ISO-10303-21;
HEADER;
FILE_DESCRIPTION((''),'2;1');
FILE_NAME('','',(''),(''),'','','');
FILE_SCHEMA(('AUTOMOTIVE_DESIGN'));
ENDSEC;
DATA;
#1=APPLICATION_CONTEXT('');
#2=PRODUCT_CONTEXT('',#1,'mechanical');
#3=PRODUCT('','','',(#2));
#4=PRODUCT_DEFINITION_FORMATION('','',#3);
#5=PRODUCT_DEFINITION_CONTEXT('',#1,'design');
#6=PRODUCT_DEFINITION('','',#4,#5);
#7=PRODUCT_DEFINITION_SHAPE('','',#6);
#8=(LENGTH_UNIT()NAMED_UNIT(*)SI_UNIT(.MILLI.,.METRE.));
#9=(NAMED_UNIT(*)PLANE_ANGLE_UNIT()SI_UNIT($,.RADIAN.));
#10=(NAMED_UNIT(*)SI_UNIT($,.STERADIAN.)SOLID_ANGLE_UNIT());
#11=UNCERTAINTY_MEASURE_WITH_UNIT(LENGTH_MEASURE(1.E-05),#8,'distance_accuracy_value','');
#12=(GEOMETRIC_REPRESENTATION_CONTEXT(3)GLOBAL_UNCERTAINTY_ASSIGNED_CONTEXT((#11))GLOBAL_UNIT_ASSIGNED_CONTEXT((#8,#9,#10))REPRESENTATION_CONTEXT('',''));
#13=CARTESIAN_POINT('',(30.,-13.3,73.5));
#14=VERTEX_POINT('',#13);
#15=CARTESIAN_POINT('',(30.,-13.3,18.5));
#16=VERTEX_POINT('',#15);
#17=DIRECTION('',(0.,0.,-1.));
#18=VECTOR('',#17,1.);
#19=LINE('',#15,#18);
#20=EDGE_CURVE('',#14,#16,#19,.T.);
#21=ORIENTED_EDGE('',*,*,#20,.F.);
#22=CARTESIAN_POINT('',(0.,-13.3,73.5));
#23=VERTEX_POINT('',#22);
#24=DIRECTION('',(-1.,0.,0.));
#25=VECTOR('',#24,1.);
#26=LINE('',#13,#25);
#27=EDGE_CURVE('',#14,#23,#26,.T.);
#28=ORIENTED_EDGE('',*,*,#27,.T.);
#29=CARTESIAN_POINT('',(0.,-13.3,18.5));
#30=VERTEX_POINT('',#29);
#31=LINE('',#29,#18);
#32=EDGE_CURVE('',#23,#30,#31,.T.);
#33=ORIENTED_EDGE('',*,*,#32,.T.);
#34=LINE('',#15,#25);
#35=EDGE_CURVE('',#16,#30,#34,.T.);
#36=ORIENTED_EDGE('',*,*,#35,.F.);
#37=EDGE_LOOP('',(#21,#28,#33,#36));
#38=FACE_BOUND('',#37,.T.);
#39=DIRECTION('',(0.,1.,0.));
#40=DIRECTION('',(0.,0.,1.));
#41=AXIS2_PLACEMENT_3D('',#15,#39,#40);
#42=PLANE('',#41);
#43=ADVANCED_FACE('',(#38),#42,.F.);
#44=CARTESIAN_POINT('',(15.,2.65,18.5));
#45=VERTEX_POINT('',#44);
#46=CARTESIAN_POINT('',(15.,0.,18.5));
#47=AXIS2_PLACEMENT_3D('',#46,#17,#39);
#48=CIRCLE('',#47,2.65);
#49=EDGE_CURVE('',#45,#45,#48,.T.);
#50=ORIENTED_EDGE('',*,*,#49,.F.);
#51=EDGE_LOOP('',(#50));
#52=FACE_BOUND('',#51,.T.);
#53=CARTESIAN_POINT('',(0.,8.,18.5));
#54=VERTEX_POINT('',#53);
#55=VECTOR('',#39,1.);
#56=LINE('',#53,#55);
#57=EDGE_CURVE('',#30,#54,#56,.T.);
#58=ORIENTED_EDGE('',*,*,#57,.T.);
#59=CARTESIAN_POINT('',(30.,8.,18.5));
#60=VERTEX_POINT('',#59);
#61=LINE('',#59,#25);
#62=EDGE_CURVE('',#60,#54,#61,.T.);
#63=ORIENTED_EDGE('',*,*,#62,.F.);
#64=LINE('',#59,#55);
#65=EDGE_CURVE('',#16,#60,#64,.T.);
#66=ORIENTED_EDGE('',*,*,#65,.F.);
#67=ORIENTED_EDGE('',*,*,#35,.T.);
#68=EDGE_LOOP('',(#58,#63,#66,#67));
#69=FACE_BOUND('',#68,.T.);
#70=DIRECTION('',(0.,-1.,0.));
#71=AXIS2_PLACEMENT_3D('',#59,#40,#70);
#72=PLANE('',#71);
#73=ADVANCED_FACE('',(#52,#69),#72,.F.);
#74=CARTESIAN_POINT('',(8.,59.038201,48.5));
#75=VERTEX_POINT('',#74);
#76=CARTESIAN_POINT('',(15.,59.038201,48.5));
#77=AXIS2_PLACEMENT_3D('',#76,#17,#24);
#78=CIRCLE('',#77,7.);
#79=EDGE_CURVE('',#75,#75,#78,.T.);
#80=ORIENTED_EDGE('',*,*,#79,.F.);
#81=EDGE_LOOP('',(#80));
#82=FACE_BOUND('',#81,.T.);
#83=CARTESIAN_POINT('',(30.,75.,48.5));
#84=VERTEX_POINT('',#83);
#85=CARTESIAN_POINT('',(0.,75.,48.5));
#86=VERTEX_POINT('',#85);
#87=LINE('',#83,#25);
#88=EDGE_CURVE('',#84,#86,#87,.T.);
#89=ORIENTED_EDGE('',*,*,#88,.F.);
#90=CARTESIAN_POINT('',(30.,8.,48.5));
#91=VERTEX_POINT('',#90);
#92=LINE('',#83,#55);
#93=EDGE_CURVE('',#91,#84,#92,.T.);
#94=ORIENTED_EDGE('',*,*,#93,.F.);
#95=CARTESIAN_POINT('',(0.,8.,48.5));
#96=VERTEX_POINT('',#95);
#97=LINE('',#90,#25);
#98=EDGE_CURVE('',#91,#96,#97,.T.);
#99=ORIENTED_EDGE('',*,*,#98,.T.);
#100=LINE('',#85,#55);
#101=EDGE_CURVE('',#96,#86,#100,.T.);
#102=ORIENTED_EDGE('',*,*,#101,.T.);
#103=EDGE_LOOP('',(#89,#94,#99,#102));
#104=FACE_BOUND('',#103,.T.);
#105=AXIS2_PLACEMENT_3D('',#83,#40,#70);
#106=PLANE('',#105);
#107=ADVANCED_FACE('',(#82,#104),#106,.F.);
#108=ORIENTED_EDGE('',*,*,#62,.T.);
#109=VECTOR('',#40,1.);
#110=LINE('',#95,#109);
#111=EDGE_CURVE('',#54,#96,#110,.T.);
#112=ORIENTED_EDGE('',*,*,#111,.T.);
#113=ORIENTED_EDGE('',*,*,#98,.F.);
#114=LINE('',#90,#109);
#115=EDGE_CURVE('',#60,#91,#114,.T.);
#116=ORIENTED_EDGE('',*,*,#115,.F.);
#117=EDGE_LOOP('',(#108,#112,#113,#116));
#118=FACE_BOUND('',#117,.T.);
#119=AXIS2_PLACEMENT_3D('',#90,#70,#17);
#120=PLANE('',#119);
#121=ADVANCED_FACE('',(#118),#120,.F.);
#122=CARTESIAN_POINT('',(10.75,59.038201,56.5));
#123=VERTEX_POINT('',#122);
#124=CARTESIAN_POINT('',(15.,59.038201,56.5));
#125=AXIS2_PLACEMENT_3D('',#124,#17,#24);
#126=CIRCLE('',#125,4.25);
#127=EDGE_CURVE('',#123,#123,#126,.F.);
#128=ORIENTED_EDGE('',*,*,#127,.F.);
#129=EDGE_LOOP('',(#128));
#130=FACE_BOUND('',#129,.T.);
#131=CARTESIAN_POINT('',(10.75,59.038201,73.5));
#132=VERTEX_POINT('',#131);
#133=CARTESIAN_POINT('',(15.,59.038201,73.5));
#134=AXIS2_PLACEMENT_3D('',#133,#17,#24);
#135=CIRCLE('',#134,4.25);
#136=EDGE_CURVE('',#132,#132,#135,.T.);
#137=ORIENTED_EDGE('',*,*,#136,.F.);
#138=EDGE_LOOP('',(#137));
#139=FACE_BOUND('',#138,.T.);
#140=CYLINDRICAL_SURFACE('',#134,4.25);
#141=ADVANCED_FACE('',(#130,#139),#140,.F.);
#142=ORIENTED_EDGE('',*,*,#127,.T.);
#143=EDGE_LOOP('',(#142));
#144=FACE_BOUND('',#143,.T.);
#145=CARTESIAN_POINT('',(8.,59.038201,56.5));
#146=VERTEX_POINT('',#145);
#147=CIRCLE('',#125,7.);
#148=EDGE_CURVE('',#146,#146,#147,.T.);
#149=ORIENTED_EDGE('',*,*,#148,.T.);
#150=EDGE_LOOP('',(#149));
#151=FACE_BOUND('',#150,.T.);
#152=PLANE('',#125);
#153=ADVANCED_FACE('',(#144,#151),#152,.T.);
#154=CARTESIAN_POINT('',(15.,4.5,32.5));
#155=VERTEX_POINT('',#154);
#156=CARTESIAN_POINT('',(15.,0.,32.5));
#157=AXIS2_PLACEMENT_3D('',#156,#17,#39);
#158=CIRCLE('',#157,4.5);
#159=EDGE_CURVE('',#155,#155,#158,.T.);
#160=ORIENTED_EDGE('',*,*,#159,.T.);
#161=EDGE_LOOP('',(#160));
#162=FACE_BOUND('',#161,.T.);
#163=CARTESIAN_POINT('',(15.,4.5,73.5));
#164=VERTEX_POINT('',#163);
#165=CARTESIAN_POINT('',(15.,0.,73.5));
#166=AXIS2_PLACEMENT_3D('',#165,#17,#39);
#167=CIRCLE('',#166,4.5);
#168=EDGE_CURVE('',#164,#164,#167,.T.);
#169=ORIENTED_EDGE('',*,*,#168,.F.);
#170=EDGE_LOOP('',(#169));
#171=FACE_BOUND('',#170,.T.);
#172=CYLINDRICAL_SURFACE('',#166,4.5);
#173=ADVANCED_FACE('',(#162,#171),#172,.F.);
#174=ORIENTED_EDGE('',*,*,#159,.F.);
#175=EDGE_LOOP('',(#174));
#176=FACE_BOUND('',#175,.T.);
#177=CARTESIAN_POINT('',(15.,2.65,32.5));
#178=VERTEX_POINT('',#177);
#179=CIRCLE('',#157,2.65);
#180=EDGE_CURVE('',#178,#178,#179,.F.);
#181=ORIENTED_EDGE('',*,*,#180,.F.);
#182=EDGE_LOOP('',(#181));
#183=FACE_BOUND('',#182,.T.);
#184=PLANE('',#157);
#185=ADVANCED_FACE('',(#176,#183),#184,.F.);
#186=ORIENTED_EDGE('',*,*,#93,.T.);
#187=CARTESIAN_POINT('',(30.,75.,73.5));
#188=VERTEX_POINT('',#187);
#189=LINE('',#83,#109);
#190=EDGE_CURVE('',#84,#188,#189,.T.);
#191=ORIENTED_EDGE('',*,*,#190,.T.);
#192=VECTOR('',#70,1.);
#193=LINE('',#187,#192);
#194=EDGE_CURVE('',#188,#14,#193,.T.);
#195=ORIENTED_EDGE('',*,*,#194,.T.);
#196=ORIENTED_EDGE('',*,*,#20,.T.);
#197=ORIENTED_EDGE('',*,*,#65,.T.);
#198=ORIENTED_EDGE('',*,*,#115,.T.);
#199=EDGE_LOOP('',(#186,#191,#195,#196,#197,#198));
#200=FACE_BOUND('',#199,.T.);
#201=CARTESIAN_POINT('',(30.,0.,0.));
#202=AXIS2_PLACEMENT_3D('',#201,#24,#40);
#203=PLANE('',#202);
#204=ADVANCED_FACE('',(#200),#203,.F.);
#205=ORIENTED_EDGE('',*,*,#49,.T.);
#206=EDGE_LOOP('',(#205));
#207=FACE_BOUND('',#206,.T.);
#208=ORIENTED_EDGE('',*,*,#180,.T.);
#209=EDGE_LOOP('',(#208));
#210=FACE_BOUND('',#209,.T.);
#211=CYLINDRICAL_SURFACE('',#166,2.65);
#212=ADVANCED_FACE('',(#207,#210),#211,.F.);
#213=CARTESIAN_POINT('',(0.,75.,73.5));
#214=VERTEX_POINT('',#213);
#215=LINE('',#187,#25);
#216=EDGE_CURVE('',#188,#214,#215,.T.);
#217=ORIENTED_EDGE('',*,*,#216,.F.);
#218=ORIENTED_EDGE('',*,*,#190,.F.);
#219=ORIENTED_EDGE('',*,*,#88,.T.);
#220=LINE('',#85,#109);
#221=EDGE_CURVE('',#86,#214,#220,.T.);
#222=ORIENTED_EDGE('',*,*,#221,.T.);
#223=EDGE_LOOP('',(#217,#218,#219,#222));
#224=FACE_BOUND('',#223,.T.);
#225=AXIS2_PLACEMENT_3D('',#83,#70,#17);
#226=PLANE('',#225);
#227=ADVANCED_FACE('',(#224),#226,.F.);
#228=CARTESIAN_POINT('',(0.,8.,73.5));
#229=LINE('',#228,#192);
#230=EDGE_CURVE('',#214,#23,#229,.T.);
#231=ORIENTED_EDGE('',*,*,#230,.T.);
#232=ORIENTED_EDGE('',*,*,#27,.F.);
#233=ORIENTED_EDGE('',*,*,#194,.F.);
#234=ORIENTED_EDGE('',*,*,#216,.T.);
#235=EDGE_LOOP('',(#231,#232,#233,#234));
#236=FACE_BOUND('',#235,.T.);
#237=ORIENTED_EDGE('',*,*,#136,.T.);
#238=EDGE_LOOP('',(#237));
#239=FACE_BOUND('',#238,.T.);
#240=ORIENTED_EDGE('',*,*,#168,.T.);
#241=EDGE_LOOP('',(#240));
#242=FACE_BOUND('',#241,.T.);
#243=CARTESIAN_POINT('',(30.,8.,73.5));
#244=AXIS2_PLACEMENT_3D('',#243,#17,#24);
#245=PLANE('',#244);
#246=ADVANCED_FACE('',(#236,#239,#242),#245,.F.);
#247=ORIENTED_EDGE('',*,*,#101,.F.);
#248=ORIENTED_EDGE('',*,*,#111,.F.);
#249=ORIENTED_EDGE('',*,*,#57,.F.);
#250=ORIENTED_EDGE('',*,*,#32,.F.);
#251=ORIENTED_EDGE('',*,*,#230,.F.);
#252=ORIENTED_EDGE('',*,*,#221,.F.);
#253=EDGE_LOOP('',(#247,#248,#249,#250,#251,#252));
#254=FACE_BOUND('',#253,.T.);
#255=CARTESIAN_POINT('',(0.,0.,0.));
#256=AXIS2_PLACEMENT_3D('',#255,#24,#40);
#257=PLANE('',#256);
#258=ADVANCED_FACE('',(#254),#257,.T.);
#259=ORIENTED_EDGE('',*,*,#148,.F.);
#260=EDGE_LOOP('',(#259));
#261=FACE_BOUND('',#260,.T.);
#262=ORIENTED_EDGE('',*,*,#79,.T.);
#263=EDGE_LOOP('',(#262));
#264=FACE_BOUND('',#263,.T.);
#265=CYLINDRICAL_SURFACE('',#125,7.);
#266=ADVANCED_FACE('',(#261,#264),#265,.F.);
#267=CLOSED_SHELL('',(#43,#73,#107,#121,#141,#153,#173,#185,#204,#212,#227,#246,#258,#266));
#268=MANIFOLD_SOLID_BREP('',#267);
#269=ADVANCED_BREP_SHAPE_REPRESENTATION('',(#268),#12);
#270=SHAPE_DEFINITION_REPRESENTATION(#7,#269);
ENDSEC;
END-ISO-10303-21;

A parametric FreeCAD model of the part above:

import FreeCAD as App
import Part
import Sketcher
from FreeCAD import Vector

doc = App.newDocument("Part")
body = doc.addObject("PartDesign::Body", "Body")

# Sketch on YZ plane
sketch1 = body.newObject("Sketcher::SketchObject", "Sketch")
sketch1.AttachmentSupport = (doc.getObject("YZ_Plane"), [""])
sketch1.MapMode = "FlatFace"
sketch1.addGeometry([
    Part.LineSegment(Vector(-13, 18, 0), Vector(8, 18, 0)),  # 0
    Part.LineSegment(Vector(8, 18, 0), Vector(8, 48, 0)),  # 1
    Part.LineSegment(Vector(8, 48, 0), Vector(75, 48, 0)),  # 2
    Part.LineSegment(Vector(75, 48, 0), Vector(75, 74, 0)),  # 3
    Part.LineSegment(Vector(75, 74, 0), Vector(-13, 74, 0)),  # 4
    Part.LineSegment(Vector(-13, 74, 0), Vector(-13, 18, 0)),  # 5
], False)
sketch1.addConstraint([
    Sketcher.Constraint("Coincident", 0, 2, 1, 1),
    Sketcher.Constraint("Coincident", 1, 2, 2, 1),
    Sketcher.Constraint("Coincident", 2, 2, 3, 1),
    Sketcher.Constraint("Coincident", 3, 2, 4, 1),
    Sketcher.Constraint("Coincident", 4, 2, 5, 1),
    Sketcher.Constraint("Coincident", 5, 2, 0, 1),
    Sketcher.Constraint("Horizontal", 0),
    Sketcher.Constraint("Vertical", 1),
    Sketcher.Constraint("Horizontal", 2),
    Sketcher.Constraint("Vertical", 3),
    Sketcher.Constraint("Horizontal", 4),
    Sketcher.Constraint("Vertical", 5),
    Sketcher.Constraint("DistanceX", 2, 1, 2, 2, 67.0),
    Sketcher.Constraint("DistanceY", 1, 1, 1, 2, 30.0),
    Sketcher.Constraint("DistanceY", 3, 1, 3, 2, 25.0),
    Sketcher.Constraint("DistanceX", 0, 1, 0, 2, 21.3),
    Sketcher.Constraint("DistanceX", -1, 1, 0, 2, 8.0),
    Sketcher.Constraint("DistanceY", -1, 1, 0, 2, 18.5),
])
pad1 = body.newObject("PartDesign::Pad", "Pad")
pad1.Profile = sketch1
pad1.Length = 30

# Sketch on XY plane
sketch2 = body.newObject("Sketcher::SketchObject", "Sketch001")
sketch2.AttachmentSupport = (doc.getObject("XY_Plane"), [""])
sketch2.MapMode = "FlatFace"
sketch2.AttachmentOffset = App.Placement(Vector(0, 0, 18.5), App.Rotation())
sketch2.addGeometry(Part.Circle(Vector(15, 0, 0), Vector(0, 0, 1), 2.6), False)
sketch2.addConstraint([
    Sketcher.Constraint("PointOnObject", 0, 3, -1),
    Sketcher.Constraint("Diameter", 0, 5.3),
    Sketcher.Constraint("DistanceX", -1, 1, 0, 3, 15.0),
])
pocket1 = body.newObject("PartDesign::Pocket", "Pocket")
pocket1.Profile = sketch2
pocket1.Type = "ThroughAll"
pocket1.Reversed = True

# Sketch on XY plane
sketch3 = body.newObject("Sketcher::SketchObject", "Sketch002")
sketch3.AttachmentSupport = (doc.getObject("XY_Plane"), [""])
sketch3.MapMode = "FlatFace"
sketch3.AttachmentOffset = App.Placement(Vector(0, 0, 32.5), App.Rotation())
sketch3.addGeometry(Part.Circle(Vector(15, 0, 0), Vector(0, 0, 1), 4.5), False)
sketch3.addConstraint([
    Sketcher.Constraint("PointOnObject", 0, 3, -1),
    Sketcher.Constraint("Diameter", 0, 9.0),
    Sketcher.Constraint("DistanceX", -1, 1, 0, 3, 15.0),
])
pocket2 = body.newObject("PartDesign::Pocket", "Pocket001")
pocket2.Profile = sketch3
pocket2.Type = "ThroughAll"
pocket2.Reversed = True

# Sketch on XY plane
sketch4 = body.newObject("Sketcher::SketchObject", "Sketch003")
sketch4.AttachmentSupport = (doc.getObject("XY_Plane"), [""])
sketch4.MapMode = "FlatFace"
sketch4.AttachmentOffset = App.Placement(Vector(0, 0, 48.5), App.Rotation())
sketch4.addGeometry(Part.Circle(Vector(15, 59, 0), Vector(0, 0, 1), 4.2), False)
sketch4.addConstraint([
    Sketcher.Constraint("Diameter", 0, 8.5),
    Sketcher.Constraint("DistanceX", -1, 1, 0, 3, 15.0),
    Sketcher.Constraint("DistanceY", -1, 1, 0, 3, 59.038201),
])
pocket3 = body.newObject("PartDesign::Pocket", "Pocket002")
pocket3.Profile = sketch4
pocket3.Type = "ThroughAll"
pocket3.Reversed = True

# Sketch on XY plane
sketch5 = body.newObject("Sketcher::SketchObject", "Sketch004")
sketch5.AttachmentSupport = (doc.getObject("XY_Plane"), [""])
sketch5.MapMode = "FlatFace"
sketch5.AttachmentOffset = App.Placement(Vector(0, 0, 48.5), App.Rotation())
sketch5.addGeometry(Part.Circle(Vector(15, 59, 0), Vector(0, 0, 1), 7), False)
sketch5.addConstraint([
    Sketcher.Constraint("Diameter", 0, 14.0),
    Sketcher.Constraint("DistanceX", -1, 1, 0, 3, 15.0),
    Sketcher.Constraint("DistanceY", -1, 1, 0, 3, 59.038201),
])
pocket4 = body.newObject("PartDesign::Pocket", "Pocket003")
pocket4.Profile = sketch5
pocket4.Length = 8
pocket4.Reversed = True

doc.recompute()
